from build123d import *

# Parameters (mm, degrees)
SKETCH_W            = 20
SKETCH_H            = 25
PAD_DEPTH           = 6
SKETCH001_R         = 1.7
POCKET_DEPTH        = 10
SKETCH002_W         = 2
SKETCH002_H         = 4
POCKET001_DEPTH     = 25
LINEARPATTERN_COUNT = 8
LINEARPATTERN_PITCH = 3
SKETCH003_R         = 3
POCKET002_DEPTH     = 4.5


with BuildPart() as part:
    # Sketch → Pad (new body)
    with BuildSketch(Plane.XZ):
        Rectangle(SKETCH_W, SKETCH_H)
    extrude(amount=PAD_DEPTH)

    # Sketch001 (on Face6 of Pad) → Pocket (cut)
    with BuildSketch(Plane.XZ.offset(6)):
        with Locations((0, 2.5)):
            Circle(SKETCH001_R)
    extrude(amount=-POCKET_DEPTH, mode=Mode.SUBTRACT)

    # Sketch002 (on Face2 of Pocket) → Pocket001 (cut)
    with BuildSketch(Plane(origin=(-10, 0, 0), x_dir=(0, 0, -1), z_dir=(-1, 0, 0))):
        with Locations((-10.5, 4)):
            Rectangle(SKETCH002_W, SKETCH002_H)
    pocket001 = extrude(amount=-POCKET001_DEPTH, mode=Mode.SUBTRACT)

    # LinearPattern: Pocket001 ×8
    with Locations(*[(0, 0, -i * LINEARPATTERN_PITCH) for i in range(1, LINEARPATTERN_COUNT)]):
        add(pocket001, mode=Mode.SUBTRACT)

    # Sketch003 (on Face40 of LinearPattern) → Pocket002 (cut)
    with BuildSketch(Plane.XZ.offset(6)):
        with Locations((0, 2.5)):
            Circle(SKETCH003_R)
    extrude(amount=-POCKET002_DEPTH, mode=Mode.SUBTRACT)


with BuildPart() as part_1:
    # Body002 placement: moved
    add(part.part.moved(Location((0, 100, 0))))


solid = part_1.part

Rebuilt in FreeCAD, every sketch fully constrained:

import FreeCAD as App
import Part
import Sketcher
Q = App.Units.Quantity

doc = App.newDocument("Part")
params = doc.addObject("Spreadsheet::Sheet", "Params")
for row, (alias, value) in enumerate([
    ("sketch1_width", "20 mm"),
    ("sketch1_height", "25 mm"),
    ("pad1_length", "6 mm"),
    ("sketch2_diameter", "3.4 mm"),
    ("pocket1_length", "10 mm"),
    ("sketch3_width", "4 mm"),
    ("sketch3_height", "2 mm"),
    ("pocket2_length", "25 mm"),
    ("linearpattern_pitch", "3 mm"),
    ("sketch4_diameter", "6 mm"),
    ("pocket3_length", "4.5 mm"),
], start=1):
    params.set(f"A{row}", alias)
    params.set(f"B{row}", "=" + value)
    params.setAlias(f"B{row}", alias)

body = doc.addObject("PartDesign::Body", "Body")

# Sketch on XZ plane
sketch1 = body.newObject("Sketcher::SketchObject", "Sketch")
sketch1.AttachmentSupport = (doc.getObject("XZ_Plane"), [""])
sketch1.MapMode = "FlatFace"
sketch1.addGeometry([
    Part.LineSegment(App.Vector(-10, 12, 0), App.Vector(-10, -12, 0)),
    Part.LineSegment(App.Vector(-10, -12, 0), App.Vector(10, -12, 0)),
    Part.LineSegment(App.Vector(10, -12, 0), App.Vector(10, 12, 0)),
    Part.LineSegment(App.Vector(10, 12, 0), App.Vector(-10, 12, 0)),
], False)
sketch1.addConstraint([
    Sketcher.Constraint("Coincident", 0, 2, 1, 1),
    Sketcher.Constraint("Coincident", 1, 2, 2, 1),
    Sketcher.Constraint("Coincident", 2, 2, 3, 1),
    Sketcher.Constraint("Coincident", 3, 2, 0, 1),
    Sketcher.Constraint("Vertical", 0),
    Sketcher.Constraint("Horizontal", 1),
    Sketcher.Constraint("Vertical", 2),
    Sketcher.Constraint("Horizontal", 3),
    Sketcher.Constraint("Symmetric", 0, 2, 2, 2, -1, 1),
    Sketcher.Constraint("DistanceX", 1, 1, 1, 2, Q("20 mm")),
    Sketcher.Constraint("DistanceY", 0, 2, 0, 1, Q("25 mm")),
])
sketch1.setExpression("Constraints[9]", "Params.sketch1_width")
sketch1.setExpression("Constraints[10]", "Params.sketch1_height")
pad1 = body.newObject("PartDesign::Pad", "Pad")
pad1.Profile = sketch1
pad1.setExpression("Length", "Params.pad1_length")

# Sketch on XZ plane
sketch2 = body.newObject("Sketcher::SketchObject", "Sketch001")
sketch2.AttachmentSupport = (doc.getObject("XZ_Plane"), [""])
sketch2.MapMode = "FlatFace"
sketch2.AttachmentOffset = App.Placement(App.Vector(0, 0, 6), App.Rotation())
sketch2.addGeometry(Part.Circle(App.Vector(0, 2.5, 0), App.Vector(0, 0, 1), 1.7), False)
sketch2.addConstraint([
    Sketcher.Constraint("PointOnObject", 0, 3, -2),
    Sketcher.Constraint("Diameter", 0, Q("3.4 mm")),
    Sketcher.Constraint("DistanceY", -1, 1, 0, 3, Q("2.5 mm")),
])
sketch2.setExpression("Constraints[1]", "Params.sketch2_diameter")
pocket1 = body.newObject("PartDesign::Pocket", "Pocket")
pocket1.Profile = sketch2
pocket1.setExpression("Length", "Params.pocket1_length")

# Sketch on YZ plane
sketch3 = body.newObject("Sketcher::SketchObject", "Sketch002")
sketch3.AttachmentSupport = (doc.getObject("YZ_Plane"), [""])
sketch3.MapMode = "FlatFace"
sketch3.AttachmentOffset = App.Placement(App.Vector(0, 0, -10), App.Rotation())
sketch3.addGeometry([
    Part.LineSegment(App.Vector(-6, 11.5, 0), App.Vector(-2, 11.5, 0)),
    Part.LineSegment(App.Vector(-2, 11.5, 0), App.Vector(-2, 9.5, 0)),
    Part.LineSegment(App.Vector(-2, 9.5, 0), App.Vector(-6, 9.5, 0)),
    Part.LineSegment(App.Vector(-6, 9.5, 0), App.Vector(-6, 11.5, 0)),
], False)
sketch3.addConstraint([
    Sketcher.Constraint("Coincident", 0, 2, 1, 1),
    Sketcher.Constraint("Coincident", 1, 2, 2, 1),
    Sketcher.Constraint("Coincident", 2, 2, 3, 1),
    Sketcher.Constraint("Coincident", 3, 2, 0, 1),
    Sketcher.Constraint("Horizontal", 0),
    Sketcher.Constraint("Vertical", 1),
    Sketcher.Constraint("Horizontal", 2),
    Sketcher.Constraint("Vertical", 3),
    Sketcher.Constraint("DistanceX", 0, 1, 0, 2, Q("4 mm")),
    Sketcher.Constraint("DistanceY", 1, 2, 1, 1, Q("2 mm")),
    Sketcher.Constraint("DistanceX", 0, 2, -1, 1, Q("2 mm")),
    Sketcher.Constraint("DistanceY", -1, 1, 0, 2, Q("11.5 mm")),
])
sketch3.setExpression("Constraints[8]", "Params.sketch3_width")
sketch3.setExpression("Constraints[9]", "Params.sketch3_height")
pocket2 = body.newObject("PartDesign::Pocket", "Pocket001")
pocket2.Profile = sketch3
pocket2.setExpression("Length", "Params.pocket2_length")
pocket2.Reversed = True
doc.recompute()

linearpattern = body.newObject("PartDesign::LinearPattern", "LinearPattern")
linearpattern.Originals = [pocket2]
linearpattern.Direction = (doc.getObject("Z_Axis"), [""])
linearpattern.Mode = "offset"
linearpattern.setExpression("Offset", "Params.linearpattern_pitch")
linearpattern.Occurrences = 8
linearpattern.Reversed = True
body.Tip = linearpattern

# Sketch on XZ plane
sketch4 = body.newObject("Sketcher::SketchObject", "Sketch003")
sketch4.AttachmentSupport = (doc.getObject("XZ_Plane"), [""])
sketch4.MapMode = "FlatFace"
sketch4.AttachmentOffset = App.Placement(App.Vector(0, 0, 6), App.Rotation())
sketch4.addGeometry(Part.Circle(App.Vector(0, 2.5, 0), App.Vector(0, 0, 1), 3), False)
sketch4.addConstraint([
    Sketcher.Constraint("PointOnObject", 0, 3, -2),
    Sketcher.Constraint("Diameter", 0, Q("6 mm")),
    Sketcher.Constraint("DistanceY", -1, 1, 0, 3, Q("2.5 mm")),
])
sketch4.setExpression("Constraints[1]", "Params.sketch4_diameter")
pocket3 = body.newObject("PartDesign::Pocket", "Pocket002")
pocket3.Profile = sketch4
pocket3.setExpression("Length", "Params.pocket3_length")
body2 = doc.addObject("PartDesign::Body", "Body001")
doc.recompute()

body.Placement = App.Placement(App.Vector(0, 100, 0), App.Rotation(App.Vector(0, 0, 1), 0))
boolean = body2.newObject("PartDesign::Boolean", "Boolean")
boolean.Type = "Fuse"
boolean.addObjects([body])

doc.recompute()
